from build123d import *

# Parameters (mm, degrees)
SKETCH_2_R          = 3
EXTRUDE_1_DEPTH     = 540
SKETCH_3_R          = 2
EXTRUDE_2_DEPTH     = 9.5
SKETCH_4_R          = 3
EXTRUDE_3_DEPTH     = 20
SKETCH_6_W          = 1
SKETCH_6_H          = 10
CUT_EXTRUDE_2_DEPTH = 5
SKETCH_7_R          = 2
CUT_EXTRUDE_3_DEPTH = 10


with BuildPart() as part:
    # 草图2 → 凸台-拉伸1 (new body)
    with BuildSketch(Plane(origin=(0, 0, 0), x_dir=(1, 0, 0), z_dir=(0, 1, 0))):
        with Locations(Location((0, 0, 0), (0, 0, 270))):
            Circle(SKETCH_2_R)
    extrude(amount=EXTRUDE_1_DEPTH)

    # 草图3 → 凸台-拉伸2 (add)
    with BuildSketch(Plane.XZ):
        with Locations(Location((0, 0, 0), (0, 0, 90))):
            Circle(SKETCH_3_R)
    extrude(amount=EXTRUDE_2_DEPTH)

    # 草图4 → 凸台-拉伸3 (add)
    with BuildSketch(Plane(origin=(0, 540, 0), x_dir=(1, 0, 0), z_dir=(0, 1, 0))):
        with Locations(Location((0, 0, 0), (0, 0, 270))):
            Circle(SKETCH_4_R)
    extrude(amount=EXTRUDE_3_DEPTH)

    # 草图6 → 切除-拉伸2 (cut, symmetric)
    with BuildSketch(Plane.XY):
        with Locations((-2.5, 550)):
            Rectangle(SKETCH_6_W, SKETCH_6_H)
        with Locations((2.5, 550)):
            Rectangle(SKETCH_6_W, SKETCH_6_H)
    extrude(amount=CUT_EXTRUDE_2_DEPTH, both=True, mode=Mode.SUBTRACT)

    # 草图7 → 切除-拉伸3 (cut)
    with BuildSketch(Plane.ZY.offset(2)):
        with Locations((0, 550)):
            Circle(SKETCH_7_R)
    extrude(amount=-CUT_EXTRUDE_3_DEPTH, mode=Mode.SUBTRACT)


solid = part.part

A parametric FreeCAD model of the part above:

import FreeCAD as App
import Part
import Sketcher
Q = App.Units.Quantity


def add_polygon(sketch, points):
    """Adds a closed chain of lines whose ends are joined by coincident constraints."""
    first, n = sketch.GeometryCount, len(points)
    for a, b in zip(points, points[1:] + points[:1]):
        sketch.addGeometry(Part.LineSegment(App.Vector(*a, 0), App.Vector(*b, 0)), False)
    for i in range(n):
        sketch.addConstraint(Sketcher.Constraint("Coincident", first + i, 2, first + (i + 1) % n, 1))

doc = App.newDocument("Part")
params = doc.addObject("Spreadsheet::Sheet", "Params")
for row, (alias, value) in enumerate([
    ("sketch1_diameter", "6 mm"),
    ("pad1_length", "540 mm"),
    ("sketch2_diameter", "4 mm"),
    ("pad2_length", "9.5 mm"),
    ("sketch3_diameter", "6 mm"),
    ("pad3_length", "20 mm"),
    ("sketch4_width", "1 mm"),
    ("sketch4_height", "10 mm"),
    ("pocket1_length", "10 mm"),
    ("sketch5_diameter", "4 mm"),
    ("pocket2_length", "10 mm"),
], start=1):
    params.set(f"A{row}", alias)
    params.set(f"B{row}", "=" + value)
    params.setAlias(f"B{row}", alias)

body = doc.addObject("PartDesign::Body", "Body")

# Sketch on XZ plane
sketch1 = body.newObject("Sketcher::SketchObject", "Sketch")
sketch1.AttachmentSupport = (doc.getObject("XZ_Plane"), [""])
sketch1.MapMode = "FlatFace"
sketch1.addGeometry(Part.Circle(App.Vector(0, 0, 0), App.Vector(0, 0, 1), 3), False)
sketch1.addConstraint([
    Sketcher.Constraint("Coincident", 0, 3, -1, 1),
    Sketcher.Constraint("Diameter", 0, Q("6 mm")),
])
sketch1.setExpression("Constraints[1]", "Params.sketch1_diameter")
pad1 = body.newObject("PartDesign::Pad", "Pad")
pad1.Profile = sketch1
pad1.setExpression("Length", "Params.pad1_length")
pad1.Reversed = True

# Sketch on XZ plane
sketch2 = body.newObject("Sketcher::SketchObject", "Sketch001")
sketch2.AttachmentSupport = (doc.getObject("XZ_Plane"), [""])
sketch2.MapMode = "FlatFace"
sketch2.addGeometry(Part.Circle(App.Vector(0, 0, 0), App.Vector(0, 0, 1), 2), False)
sketch2.addConstraint([
    Sketcher.Constraint("Coincident", 0, 3, -1, 1),
    Sketcher.Constraint("Diameter", 0, Q("4 mm")),
])
sketch2.setExpression("Constraints[1]", "Params.sketch2_diameter")
pad2 = body.newObject("PartDesign::Pad", "Pad001")
pad2.Profile = sketch2
pad2.setExpression("Length", "Params.pad2_length")

# Sketch on XZ plane
sketch3 = body.newObject("Sketcher::SketchObject", "Sketch002")
sketch3.AttachmentSupport = (doc.getObject("XZ_Plane"), [""])
sketch3.MapMode = "FlatFace"
sketch3.AttachmentOffset = App.Placement(App.Vector(0, 0, -540), App.Rotation())
sketch3.addGeometry(Part.Circle(App.Vector(0, 0, 0), App.Vector(0, 0, 1), 3), False)
sketch3.addConstraint([
    Sketcher.Constraint("Coincident", 0, 3, -1, 1),
    Sketcher.Constraint("Diameter", 0, Q("6 mm")),
])
sketch3.setExpression("Constraints[1]", "Params.sketch3_diameter")
pad3 = body.newObject("PartDesign::Pad", "Pad002")
pad3.Profile = sketch3
pad3.setExpression("Length", "Params.pad3_length")
pad3.Reversed = True

# Sketch on XY plane
sketch4 = body.newObject("Sketcher::SketchObject", "Sketch003")
sketch4.AttachmentSupport = (doc.getObject("XY_Plane"), [""])
sketch4.MapMode = "FlatFace"
add_polygon(sketch4, [(-3, 555), (-3, 545), (-2, 545), (-2, 555)])  # lines 0-3
add_polygon(sketch4, [(2, 555), (2, 545), (3, 545), (3, 555)])  # lines 4-7
sketch4.addConstraint([
    Sketcher.Constraint("Vertical", 0),
    Sketcher.Constraint("Horizontal", 1),
    Sketcher.Constraint("Vertical", 2),
    Sketcher.Constraint("Horizontal", 3),
    Sketcher.Constraint("Vertical", 4),
    Sketcher.Constraint("Horizontal", 5),
    Sketcher.Constraint("Vertical", 6),
    Sketcher.Constraint("Horizontal", 7),
    Sketcher.Constraint("Symmetric", 1, 2, 4, 2, -2),
    Sketcher.Constraint("Symmetric", 3, 2, 6, 2, -2),
    Sketcher.Constraint("DistanceX", 1, 1, 1, 2, Q("1 mm")),
    Sketcher.Constraint("DistanceY", 0, 2, 0, 1, Q("10 mm")),
    Sketcher.Constraint("DistanceX", 0, 2, -1, 1, Q("3 mm")),
    Sketcher.Constraint("DistanceY", -1, 1, 0, 2, Q("545 mm")),
])
sketch4.setExpression("Constraints[18]", "Params.sketch4_width")
sketch4.setExpression("Constraints[19]", "Params.sketch4_height")
pocket1 = body.newObject("PartDesign::Pocket", "Pocket")
pocket1.Profile = sketch4
pocket1.setExpression("Length", "Params.pocket1_length")
pocket1.Midplane = True

# Sketch on YZ plane
sketch5 = body.newObject("Sketcher::SketchObject", "Sketch004")
sketch5.AttachmentSupport = (doc.getObject("YZ_Plane"), [""])
sketch5.MapMode = "FlatFace"
sketch5.AttachmentOffset = App.Placement(App.Vector(0, 0, -2), App.Rotation())
sketch5.addGeometry(Part.Circle(App.Vector(550, 0, 0), App.Vector(0, 0, 1), 2), False)
sketch5.addConstraint([
    Sketcher.Constraint("PointOnObject", 0, 3, -1),
    Sketcher.Constraint("Diameter", 0, Q("4 mm")),
    Sketcher.Constraint("DistanceX", -1, 1, 0, 3, Q("550 mm")),
])
sketch5.setExpression("Constraints[1]", "Params.sketch5_diameter")
pocket2 = body.newObject("PartDesign::Pocket", "Pocket001")
pocket2.Profile = sketch5
pocket2.setExpression("Length", "Params.pocket2_length")
pocket2.Reversed = True

doc.recompute()
